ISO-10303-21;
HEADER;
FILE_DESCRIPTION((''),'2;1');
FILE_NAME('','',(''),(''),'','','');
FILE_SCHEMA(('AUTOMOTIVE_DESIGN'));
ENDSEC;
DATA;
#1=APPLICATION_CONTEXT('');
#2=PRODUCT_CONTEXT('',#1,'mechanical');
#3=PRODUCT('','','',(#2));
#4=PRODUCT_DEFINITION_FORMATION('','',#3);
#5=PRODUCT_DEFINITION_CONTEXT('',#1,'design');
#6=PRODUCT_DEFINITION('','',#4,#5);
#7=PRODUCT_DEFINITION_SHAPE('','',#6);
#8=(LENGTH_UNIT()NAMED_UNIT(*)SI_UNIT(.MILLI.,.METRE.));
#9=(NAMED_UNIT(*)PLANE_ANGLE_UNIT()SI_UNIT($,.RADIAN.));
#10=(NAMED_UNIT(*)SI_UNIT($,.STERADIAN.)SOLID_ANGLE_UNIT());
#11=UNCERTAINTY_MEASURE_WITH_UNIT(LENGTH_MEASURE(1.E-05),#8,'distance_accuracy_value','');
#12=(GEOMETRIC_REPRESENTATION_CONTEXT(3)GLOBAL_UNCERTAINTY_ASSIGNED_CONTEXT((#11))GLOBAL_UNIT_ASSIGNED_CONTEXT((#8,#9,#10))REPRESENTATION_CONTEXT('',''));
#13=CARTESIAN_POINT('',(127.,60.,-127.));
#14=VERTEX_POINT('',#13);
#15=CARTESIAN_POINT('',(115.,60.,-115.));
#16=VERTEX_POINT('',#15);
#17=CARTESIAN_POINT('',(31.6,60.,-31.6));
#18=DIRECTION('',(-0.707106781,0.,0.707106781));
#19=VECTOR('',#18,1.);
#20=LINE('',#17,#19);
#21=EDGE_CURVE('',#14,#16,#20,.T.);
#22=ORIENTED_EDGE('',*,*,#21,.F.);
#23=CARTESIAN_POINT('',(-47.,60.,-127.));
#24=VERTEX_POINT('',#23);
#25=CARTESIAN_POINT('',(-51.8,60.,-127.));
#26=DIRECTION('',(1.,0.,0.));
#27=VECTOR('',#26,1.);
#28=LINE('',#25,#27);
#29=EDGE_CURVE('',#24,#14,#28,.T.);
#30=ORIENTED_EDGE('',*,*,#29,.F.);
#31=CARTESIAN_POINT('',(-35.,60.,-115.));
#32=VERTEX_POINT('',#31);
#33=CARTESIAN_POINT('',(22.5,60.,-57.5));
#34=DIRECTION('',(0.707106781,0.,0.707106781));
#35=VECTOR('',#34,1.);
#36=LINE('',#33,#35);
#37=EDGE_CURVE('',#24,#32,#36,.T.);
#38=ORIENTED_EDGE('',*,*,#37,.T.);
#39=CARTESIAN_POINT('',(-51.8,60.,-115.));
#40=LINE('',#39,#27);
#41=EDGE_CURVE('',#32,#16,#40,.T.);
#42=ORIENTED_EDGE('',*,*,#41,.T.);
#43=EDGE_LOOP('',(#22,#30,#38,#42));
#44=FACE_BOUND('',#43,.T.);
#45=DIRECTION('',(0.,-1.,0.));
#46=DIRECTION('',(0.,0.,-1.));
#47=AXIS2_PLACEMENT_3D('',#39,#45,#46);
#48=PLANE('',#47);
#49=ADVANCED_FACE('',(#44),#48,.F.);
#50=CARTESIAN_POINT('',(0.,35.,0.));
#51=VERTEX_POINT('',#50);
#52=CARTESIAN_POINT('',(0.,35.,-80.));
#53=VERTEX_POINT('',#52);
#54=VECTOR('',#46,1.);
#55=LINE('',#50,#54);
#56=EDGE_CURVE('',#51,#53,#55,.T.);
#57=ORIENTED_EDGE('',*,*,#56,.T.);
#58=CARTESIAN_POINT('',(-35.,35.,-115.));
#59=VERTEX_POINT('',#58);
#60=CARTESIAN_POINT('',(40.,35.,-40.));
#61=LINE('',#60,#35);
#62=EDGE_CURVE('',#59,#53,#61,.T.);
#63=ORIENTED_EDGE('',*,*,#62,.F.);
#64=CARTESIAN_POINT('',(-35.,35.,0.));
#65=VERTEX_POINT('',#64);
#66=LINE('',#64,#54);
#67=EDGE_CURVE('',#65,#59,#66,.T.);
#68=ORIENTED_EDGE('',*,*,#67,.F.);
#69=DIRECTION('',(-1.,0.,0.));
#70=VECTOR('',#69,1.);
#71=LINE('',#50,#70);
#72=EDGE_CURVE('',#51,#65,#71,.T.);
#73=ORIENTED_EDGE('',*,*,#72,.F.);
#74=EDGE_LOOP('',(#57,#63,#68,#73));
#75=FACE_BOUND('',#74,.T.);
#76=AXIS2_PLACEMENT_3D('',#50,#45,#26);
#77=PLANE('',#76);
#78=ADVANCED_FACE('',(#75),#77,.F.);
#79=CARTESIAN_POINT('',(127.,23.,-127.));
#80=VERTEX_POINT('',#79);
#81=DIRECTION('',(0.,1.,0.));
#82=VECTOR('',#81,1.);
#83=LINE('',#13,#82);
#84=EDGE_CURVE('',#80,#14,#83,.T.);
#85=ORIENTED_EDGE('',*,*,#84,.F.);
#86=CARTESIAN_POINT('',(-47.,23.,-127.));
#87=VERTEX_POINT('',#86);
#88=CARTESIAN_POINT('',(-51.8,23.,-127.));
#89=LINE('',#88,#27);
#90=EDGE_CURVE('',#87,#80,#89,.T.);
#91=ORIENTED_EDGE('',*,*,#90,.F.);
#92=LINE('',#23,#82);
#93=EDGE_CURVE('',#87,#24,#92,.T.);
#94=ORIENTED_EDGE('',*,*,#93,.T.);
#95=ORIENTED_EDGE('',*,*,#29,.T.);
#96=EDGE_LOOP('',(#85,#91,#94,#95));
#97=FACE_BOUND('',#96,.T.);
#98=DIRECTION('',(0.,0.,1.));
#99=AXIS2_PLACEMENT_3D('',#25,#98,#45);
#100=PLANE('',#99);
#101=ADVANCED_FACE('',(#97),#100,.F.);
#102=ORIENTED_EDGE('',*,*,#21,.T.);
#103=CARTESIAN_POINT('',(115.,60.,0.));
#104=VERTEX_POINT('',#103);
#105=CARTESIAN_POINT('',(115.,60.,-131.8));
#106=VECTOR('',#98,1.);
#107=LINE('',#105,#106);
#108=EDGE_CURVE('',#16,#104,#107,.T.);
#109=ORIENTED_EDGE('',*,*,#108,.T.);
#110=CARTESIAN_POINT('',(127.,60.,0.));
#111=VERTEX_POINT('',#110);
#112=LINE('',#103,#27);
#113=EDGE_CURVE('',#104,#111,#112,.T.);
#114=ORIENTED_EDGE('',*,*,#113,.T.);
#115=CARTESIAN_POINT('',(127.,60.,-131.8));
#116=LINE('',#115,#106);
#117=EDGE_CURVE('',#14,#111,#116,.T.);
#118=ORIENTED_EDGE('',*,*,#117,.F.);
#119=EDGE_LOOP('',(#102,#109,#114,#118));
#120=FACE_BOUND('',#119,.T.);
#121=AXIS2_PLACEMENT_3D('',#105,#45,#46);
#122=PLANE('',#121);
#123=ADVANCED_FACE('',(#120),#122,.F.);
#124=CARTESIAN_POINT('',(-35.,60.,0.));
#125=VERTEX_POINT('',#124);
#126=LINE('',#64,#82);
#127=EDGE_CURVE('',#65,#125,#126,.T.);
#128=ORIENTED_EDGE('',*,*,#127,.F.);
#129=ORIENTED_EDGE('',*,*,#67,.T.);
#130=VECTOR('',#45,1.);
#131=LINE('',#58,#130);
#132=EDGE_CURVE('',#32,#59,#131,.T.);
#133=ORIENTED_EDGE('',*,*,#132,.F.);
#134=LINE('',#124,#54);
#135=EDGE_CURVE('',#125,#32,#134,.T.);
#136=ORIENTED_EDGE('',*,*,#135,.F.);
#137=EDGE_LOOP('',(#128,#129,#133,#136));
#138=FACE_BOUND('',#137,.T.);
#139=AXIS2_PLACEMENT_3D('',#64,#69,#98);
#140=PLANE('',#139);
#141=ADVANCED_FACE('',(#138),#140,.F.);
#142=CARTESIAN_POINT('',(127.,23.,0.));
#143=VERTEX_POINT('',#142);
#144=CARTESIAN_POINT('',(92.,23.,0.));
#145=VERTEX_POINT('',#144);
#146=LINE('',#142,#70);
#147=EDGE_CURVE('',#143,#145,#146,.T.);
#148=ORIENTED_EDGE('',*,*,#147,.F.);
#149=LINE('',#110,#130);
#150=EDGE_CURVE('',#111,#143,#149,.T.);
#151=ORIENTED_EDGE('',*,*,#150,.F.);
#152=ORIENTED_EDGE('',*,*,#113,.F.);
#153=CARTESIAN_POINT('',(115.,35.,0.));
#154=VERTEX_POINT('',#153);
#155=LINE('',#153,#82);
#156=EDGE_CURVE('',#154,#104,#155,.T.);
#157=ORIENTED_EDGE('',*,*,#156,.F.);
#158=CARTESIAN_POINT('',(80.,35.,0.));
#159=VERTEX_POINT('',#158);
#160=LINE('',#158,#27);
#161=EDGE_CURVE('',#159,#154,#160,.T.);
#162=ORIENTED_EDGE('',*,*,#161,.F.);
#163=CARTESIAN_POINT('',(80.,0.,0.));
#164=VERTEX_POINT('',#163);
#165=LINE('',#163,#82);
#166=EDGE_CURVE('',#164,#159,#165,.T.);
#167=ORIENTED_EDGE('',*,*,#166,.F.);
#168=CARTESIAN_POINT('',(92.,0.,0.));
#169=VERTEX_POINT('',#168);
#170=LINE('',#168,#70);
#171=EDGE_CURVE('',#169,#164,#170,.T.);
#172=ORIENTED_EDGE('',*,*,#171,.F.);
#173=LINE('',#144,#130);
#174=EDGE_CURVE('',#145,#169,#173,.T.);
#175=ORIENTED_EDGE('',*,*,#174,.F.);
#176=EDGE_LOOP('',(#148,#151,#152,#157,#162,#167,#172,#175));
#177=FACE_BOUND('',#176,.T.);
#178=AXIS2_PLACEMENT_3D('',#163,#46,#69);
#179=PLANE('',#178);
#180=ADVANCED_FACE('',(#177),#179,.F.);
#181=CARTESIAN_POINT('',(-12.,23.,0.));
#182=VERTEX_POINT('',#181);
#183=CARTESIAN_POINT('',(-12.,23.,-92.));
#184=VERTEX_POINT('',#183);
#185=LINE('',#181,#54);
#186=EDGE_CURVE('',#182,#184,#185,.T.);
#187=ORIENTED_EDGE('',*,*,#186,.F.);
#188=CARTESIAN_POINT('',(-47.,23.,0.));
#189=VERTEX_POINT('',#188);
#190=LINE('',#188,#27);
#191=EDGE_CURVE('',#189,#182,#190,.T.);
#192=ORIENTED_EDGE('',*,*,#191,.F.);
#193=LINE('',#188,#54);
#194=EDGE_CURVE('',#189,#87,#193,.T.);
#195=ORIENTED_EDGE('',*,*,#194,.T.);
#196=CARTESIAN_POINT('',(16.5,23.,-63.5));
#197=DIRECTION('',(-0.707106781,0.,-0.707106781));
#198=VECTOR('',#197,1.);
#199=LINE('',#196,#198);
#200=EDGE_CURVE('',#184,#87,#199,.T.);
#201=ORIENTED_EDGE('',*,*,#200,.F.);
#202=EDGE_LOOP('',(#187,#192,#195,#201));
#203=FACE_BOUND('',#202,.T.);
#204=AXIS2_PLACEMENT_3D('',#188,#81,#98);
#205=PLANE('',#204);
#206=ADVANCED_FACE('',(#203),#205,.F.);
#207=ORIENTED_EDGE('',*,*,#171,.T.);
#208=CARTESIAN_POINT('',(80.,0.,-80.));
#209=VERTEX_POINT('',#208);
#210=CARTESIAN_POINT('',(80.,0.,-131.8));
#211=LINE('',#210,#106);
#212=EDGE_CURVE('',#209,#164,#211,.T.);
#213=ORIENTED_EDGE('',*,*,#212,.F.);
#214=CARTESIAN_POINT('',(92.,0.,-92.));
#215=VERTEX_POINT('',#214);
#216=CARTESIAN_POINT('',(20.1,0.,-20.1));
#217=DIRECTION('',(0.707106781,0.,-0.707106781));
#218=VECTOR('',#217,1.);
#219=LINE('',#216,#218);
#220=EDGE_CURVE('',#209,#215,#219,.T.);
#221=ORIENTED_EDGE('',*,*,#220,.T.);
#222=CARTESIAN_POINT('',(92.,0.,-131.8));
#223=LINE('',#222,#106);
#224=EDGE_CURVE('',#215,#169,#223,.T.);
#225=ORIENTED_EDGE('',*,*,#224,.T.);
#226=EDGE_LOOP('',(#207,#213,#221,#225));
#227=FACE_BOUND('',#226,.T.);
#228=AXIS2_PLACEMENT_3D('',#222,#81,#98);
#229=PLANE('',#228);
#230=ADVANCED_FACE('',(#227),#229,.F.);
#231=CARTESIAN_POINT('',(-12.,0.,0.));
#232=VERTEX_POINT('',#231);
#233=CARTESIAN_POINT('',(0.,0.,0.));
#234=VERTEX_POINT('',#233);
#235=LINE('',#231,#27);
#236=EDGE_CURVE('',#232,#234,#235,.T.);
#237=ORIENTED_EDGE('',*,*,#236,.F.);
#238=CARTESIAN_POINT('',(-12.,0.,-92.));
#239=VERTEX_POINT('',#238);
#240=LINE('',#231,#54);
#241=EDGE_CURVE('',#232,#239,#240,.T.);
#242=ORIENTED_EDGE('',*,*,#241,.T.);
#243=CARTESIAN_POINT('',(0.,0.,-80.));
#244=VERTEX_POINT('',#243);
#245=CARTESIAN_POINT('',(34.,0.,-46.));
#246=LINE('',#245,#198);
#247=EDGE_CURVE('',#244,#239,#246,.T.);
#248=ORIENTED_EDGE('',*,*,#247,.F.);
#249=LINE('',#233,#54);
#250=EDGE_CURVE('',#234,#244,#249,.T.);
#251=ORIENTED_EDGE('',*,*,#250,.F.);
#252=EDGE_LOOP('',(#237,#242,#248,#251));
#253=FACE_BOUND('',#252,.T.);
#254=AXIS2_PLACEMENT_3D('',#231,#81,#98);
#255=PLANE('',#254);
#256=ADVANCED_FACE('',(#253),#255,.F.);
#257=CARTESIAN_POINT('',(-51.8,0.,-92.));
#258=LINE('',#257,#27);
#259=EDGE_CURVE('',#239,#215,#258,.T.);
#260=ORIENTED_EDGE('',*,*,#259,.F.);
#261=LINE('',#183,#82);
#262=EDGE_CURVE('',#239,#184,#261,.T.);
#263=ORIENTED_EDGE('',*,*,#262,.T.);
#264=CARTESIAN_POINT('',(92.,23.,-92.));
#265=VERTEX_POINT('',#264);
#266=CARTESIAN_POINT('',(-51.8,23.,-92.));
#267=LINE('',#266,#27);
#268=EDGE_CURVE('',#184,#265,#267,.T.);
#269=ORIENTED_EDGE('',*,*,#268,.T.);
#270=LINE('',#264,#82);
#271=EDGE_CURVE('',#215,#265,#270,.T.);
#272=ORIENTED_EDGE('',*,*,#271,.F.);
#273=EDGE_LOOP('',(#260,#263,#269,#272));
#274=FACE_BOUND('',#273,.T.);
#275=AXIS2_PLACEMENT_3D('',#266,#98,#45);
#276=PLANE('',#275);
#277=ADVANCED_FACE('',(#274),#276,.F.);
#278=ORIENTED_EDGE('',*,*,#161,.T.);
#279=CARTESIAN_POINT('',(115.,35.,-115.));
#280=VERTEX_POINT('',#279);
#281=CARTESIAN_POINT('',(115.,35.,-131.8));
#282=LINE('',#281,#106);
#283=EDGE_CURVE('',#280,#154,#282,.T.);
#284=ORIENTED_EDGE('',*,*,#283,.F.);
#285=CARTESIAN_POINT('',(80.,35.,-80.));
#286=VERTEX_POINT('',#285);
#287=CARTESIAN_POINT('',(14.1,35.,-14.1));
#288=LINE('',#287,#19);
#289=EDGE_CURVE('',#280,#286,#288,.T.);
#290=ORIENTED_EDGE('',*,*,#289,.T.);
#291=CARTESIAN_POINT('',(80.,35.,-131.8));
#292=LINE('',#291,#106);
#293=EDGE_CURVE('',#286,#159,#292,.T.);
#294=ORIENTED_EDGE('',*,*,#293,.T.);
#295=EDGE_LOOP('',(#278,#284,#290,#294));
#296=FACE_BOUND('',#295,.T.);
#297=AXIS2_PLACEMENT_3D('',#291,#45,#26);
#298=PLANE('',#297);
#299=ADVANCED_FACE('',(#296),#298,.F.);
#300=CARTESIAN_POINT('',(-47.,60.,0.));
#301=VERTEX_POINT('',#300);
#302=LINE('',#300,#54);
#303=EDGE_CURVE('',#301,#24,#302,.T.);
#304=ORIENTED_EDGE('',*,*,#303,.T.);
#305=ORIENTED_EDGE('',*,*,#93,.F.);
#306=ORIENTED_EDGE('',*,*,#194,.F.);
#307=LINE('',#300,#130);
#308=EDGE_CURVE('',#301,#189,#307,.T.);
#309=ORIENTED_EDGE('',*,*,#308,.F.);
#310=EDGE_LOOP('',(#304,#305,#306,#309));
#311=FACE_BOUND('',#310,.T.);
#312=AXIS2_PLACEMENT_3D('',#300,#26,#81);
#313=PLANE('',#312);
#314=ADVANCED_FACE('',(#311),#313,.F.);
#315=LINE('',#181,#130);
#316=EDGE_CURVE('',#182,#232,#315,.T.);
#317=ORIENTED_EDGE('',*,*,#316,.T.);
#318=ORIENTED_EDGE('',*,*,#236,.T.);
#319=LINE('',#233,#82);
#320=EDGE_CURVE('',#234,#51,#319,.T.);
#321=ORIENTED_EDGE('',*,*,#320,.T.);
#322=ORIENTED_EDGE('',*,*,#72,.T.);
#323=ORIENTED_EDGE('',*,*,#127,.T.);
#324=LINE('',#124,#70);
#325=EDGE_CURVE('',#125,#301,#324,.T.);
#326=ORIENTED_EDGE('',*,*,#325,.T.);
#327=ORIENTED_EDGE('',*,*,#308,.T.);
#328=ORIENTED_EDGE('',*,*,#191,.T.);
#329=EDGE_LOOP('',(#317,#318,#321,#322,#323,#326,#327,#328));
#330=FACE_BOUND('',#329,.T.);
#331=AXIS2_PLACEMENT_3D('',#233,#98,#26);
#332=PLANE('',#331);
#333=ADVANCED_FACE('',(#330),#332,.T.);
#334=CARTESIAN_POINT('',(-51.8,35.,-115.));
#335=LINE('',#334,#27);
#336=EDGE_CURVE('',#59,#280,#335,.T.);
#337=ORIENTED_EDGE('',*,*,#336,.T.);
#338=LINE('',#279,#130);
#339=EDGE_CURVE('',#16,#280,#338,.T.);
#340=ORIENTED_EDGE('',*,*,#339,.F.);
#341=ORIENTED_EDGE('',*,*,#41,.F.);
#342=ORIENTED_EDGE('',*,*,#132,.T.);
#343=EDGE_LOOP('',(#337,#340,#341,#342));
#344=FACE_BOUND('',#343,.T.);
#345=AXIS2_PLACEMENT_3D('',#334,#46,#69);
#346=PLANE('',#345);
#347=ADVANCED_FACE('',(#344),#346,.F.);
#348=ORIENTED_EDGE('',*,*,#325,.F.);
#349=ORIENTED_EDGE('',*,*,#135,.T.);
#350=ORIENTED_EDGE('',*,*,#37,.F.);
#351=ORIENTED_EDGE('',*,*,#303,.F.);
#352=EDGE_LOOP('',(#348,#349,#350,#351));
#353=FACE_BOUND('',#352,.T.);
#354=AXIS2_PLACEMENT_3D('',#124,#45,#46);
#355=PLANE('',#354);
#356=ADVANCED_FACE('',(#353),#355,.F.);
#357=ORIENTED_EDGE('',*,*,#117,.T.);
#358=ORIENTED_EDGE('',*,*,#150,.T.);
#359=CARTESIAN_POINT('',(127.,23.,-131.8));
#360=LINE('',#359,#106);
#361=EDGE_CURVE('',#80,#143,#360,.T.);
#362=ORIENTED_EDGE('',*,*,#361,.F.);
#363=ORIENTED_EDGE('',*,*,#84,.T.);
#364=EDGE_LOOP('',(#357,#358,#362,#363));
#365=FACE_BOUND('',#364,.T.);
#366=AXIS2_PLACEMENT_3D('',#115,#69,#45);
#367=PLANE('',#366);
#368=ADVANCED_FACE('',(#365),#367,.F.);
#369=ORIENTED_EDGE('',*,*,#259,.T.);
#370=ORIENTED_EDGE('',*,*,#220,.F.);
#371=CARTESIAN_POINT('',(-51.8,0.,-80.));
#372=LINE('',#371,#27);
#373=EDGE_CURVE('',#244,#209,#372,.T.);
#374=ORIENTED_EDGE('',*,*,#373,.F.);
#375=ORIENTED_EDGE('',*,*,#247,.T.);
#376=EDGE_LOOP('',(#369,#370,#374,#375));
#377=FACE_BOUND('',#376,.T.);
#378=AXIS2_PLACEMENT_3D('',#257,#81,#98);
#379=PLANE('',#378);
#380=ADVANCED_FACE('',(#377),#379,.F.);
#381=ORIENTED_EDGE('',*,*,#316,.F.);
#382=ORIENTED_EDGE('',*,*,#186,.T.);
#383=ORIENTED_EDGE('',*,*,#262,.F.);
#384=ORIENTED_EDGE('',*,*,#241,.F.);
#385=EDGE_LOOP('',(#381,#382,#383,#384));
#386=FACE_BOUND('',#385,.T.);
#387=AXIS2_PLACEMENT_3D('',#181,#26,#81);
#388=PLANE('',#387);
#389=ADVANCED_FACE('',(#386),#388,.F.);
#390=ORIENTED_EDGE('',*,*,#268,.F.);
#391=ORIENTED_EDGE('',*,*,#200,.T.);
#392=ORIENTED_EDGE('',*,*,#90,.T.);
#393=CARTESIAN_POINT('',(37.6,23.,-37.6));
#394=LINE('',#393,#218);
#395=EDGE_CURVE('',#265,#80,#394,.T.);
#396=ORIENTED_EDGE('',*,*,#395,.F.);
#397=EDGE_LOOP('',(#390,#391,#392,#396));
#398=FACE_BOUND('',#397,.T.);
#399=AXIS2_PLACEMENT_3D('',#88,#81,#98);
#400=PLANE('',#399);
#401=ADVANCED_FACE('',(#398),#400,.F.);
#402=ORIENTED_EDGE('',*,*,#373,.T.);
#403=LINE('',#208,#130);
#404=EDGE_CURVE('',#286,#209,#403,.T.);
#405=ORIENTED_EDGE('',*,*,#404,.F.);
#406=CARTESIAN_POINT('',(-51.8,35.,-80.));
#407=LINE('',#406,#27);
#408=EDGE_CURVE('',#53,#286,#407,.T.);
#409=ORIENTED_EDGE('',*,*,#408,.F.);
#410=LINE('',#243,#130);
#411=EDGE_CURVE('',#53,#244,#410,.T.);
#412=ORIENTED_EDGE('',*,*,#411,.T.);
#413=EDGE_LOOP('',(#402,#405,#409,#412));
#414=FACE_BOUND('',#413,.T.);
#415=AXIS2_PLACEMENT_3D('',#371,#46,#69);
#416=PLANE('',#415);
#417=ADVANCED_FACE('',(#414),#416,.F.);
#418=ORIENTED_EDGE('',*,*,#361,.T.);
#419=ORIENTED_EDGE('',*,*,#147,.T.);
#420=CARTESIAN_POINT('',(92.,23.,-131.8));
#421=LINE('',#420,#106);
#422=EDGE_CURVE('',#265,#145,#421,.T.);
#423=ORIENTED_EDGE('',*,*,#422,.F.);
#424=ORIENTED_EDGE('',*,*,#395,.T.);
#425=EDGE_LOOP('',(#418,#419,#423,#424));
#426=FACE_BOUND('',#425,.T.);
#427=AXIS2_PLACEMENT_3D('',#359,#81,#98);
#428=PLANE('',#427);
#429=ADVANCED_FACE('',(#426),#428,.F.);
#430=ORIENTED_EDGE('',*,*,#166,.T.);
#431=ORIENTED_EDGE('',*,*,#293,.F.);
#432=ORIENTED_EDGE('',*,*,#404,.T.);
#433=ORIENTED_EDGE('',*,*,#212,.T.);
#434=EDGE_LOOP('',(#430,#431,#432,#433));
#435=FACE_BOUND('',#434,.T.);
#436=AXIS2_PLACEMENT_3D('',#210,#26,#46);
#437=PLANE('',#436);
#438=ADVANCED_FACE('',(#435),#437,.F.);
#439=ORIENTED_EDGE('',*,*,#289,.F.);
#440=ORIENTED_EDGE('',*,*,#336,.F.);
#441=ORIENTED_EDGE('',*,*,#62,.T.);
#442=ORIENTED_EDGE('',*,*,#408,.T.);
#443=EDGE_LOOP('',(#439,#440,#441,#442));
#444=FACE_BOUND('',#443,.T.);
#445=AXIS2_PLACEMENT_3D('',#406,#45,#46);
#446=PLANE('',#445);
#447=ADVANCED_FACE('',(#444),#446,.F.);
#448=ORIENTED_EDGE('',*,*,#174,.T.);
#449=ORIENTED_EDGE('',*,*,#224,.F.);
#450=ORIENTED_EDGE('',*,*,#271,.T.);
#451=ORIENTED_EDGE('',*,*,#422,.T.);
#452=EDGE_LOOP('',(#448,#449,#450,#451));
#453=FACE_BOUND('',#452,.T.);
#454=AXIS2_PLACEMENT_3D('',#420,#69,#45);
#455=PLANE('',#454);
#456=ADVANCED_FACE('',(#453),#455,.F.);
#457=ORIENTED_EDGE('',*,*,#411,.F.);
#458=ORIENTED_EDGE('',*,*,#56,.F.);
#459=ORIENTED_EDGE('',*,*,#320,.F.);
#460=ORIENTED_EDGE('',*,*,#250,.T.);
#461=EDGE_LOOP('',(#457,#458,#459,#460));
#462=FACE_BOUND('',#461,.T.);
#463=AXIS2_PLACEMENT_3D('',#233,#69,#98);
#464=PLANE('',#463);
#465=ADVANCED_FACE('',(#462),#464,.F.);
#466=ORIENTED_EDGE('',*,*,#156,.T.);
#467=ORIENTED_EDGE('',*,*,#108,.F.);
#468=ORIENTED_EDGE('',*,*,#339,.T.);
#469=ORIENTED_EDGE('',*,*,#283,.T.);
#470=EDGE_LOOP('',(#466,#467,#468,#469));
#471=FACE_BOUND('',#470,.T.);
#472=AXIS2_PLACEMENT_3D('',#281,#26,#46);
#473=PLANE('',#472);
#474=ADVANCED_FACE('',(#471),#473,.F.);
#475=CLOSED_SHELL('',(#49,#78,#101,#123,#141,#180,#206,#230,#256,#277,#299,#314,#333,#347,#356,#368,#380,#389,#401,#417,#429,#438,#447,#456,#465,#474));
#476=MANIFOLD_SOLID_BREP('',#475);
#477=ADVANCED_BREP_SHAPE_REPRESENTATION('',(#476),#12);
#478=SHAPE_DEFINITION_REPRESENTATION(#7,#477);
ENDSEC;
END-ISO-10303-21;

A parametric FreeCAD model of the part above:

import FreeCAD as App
import Part
import Sketcher
from FreeCAD import Vector


def add_polygon(sketch, points):
    """Adds a closed chain of lines whose ends are joined by coincident constraints."""
    first, n = sketch.GeometryCount, len(points)
    for a, b in zip(points, points[1:] + points[:1]):
        sketch.addGeometry(Part.LineSegment(App.Vector(*a, 0), App.Vector(*b, 0)), False)
    for i in range(n):
        sketch.addConstraint(Sketcher.Constraint("Coincident", first + i, 2, first + (i + 1) % n, 1))

doc = App.newDocument("Part")
params = doc.addObject("Spreadsheet::Sheet", "Params")
for row, (alias, value) in enumerate([
    ("sketch1_width", "35 mm"),
    ("sketch1_width2", "12 mm"),
    ("sketch1_height", "25 mm"),
    ("sketch1_height2", "37 mm"),
    ("sketch2_width", "80 mm"),
], start=1):
    params.set(f"A{row}", alias)
    params.set(f"B{row}", "=" + value)
    params.setAlias(f"B{row}", alias)

body = doc.addObject("PartDesign::Body", "Body")

sketch1 = doc.addObject("Sketcher::SketchObject", "Sketch")
body.addObject(sketch1)
sketch1.AttachmentSupport = (doc.XY_Plane, [""])
sketch1.MapMode = "FlatFace"
add_polygon(sketch1, [(0, 0), (0, 35), (-35, 35), (-35, 60), (-47, 60), (-47, 23), (-12, 23), (-12, 0)])
sketch1.addConstraint([
    Sketcher.Constraint("Vertical", 0),
    Sketcher.Constraint("Horizontal", 1),
    Sketcher.Constraint("Vertical", 2),
    Sketcher.Constraint("Horizontal", 3),
    Sketcher.Constraint("Vertical", 4),
    Sketcher.Constraint("Horizontal", 5),
    Sketcher.Constraint("Vertical", 6),
    Sketcher.Constraint("Horizontal", 7),
    Sketcher.Constraint("Coincident", 7, 2, -1, 1),
    Sketcher.Constraint("Equal", 1, 5),
    Sketcher.Constraint("Equal", 5, 0),
    Sketcher.Constraint("DistanceX", 1, 2, 1, 1, 35.0),
    Sketcher.Constraint("DistanceX", 3, 2, 3, 1, 12.0),
    Sketcher.Constraint("DistanceY", 2, 1, 2, 2, 25.0),
    Sketcher.Constraint("DistanceY", 4, 2, 4, 1, 37.0),
])
sketch1.setExpression("Constraints[19]", "Params.sketch1_width")
sketch1.setExpression("Constraints[20]", "Params.sketch1_width2")
sketch1.setExpression("Constraints[21]", "Params.sketch1_height")
sketch1.setExpression("Constraints[22]", "Params.sketch1_height2")

sketch2 = doc.addObject("Sketcher::SketchObject", "Sketch001")
body.addObject(sketch2)
sketch2.AttachmentSupport = (doc.XZ_Plane, [""])
sketch2.MapMode = "FlatFace"
sketch2.addGeometry([
    Part.LineSegment(Vector(0, 0, 0), Vector(0, -80, 0)),
    Part.LineSegment(Vector(0, -80, 0), Vector(80, -80, 0)),
    Part.LineSegment(Vector(80, -80, 0), Vector(80, 0, 0)),
], False)
sketch2.addConstraint([
    Sketcher.Constraint("Coincident", 0, 2, 1, 1),
    Sketcher.Constraint("Coincident", 1, 2, 2, 1),
    Sketcher.Constraint("Vertical", 0),
    Sketcher.Constraint("Horizontal", 1),
    Sketcher.Constraint("Vertical", 2),
    Sketcher.Constraint("Coincident", 0, 1, -1, 1),
    Sketcher.Constraint("PointOnObject", 2, 2, -1),
    Sketcher.Constraint("Equal", 1, 0),
    Sketcher.Constraint("DistanceX", 1, 1, 1, 2, 80.0),
])
sketch2.setExpression("Constraints[8]", "Params.sketch2_width")
doc.recompute()

additivepipe = doc.addObject("PartDesign::AdditivePipe", "AdditivePipe")
body.addObject(additivepipe)
additivepipe.Profile = sketch1
additivepipe.Spine = (sketch2, ["Edge1", "Edge2", "Edge3"])
additivepipe.Transition = "Right corner"

doc.recompute()
